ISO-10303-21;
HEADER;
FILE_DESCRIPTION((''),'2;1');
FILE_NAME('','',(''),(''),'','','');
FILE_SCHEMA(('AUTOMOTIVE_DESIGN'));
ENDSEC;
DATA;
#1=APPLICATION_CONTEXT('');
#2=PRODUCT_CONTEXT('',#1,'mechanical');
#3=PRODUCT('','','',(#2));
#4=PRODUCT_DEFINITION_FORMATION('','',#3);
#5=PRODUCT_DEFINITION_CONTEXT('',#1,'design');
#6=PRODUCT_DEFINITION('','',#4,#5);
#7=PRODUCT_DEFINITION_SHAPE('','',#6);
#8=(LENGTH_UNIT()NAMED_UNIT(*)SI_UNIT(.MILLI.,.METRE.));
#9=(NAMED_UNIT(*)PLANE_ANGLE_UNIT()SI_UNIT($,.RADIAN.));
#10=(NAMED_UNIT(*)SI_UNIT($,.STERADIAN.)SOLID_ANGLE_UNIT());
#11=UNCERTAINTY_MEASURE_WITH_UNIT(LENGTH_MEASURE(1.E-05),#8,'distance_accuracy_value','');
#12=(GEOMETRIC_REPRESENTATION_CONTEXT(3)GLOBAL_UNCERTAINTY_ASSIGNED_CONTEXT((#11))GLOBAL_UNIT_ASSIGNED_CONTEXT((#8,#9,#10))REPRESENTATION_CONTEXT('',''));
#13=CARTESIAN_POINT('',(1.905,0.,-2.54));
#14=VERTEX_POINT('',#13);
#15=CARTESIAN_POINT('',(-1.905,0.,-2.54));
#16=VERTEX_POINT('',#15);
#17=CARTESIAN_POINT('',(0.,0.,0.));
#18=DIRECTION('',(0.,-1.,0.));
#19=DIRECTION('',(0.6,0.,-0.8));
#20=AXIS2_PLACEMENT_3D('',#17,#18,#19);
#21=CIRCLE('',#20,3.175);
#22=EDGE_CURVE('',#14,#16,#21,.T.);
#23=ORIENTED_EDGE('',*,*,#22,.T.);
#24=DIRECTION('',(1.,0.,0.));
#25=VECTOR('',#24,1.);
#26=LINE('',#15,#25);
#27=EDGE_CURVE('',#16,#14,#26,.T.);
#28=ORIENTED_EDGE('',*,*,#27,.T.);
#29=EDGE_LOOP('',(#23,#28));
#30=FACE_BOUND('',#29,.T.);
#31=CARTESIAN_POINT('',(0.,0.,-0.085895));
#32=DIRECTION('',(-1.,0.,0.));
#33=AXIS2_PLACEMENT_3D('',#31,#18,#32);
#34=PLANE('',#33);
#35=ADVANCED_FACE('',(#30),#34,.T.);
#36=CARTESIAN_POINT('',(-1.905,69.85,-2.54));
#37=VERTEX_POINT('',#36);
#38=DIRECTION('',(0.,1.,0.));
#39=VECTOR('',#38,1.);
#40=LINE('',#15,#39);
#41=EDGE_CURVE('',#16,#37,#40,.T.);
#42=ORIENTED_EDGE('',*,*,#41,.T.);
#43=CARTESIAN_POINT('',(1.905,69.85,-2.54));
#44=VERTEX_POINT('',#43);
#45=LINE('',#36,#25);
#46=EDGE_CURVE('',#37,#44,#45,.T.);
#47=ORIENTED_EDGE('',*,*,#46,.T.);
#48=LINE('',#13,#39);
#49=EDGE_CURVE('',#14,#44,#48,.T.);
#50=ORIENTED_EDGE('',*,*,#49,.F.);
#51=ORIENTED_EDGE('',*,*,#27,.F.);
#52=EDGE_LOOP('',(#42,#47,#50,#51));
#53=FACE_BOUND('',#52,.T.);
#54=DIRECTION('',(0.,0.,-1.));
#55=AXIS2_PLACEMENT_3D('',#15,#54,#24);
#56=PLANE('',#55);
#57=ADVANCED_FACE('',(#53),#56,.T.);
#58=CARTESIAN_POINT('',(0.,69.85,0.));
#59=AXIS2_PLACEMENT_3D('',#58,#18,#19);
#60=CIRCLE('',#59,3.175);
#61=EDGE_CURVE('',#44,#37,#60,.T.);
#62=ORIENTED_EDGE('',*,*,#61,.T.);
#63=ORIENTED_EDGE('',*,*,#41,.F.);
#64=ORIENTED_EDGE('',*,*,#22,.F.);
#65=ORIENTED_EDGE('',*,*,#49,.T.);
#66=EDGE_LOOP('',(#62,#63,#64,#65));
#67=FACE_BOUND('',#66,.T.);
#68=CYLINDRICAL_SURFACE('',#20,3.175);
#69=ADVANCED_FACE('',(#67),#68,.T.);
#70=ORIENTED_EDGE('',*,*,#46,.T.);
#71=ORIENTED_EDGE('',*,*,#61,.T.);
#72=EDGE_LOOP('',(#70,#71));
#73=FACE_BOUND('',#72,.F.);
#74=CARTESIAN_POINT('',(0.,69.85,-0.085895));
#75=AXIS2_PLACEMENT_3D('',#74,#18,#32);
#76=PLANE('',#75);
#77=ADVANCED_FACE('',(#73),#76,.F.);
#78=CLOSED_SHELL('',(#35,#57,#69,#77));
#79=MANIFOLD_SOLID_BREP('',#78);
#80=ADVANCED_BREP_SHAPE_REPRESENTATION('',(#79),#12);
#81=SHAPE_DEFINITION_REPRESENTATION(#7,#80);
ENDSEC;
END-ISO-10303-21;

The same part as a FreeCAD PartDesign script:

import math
import FreeCAD as App
import Part
import Sketcher

V = App.Vector
Q = App.Units.Quantity

doc = App.newDocument("Part")
body = doc.addObject("PartDesign::Body", "Body")

# Sketch on XZ plane
sketch1 = body.newObject("Sketcher::SketchObject", "Sketch")
sketch1.AttachmentSupport = (doc.getObject("XZ_Plane"), [""])
sketch1.MapMode = "FlatFace"
sketch1.addGeometry(Part.LineSegment(V(1.905, -2.54, 0), V(-1.905, -2.54, 0)), False)
sketch1.addGeometry(Part.ArcOfCircle(Part.Circle(V(0, 0, 0), V(0, 0, 1), 3.175), math.radians(-53.130102), math.radians(233.130102)), False)
sketch1.addConstraint(Sketcher.Constraint("Coincident", 0, 1, 1, 1))
sketch1.addConstraint(Sketcher.Constraint("Coincident", 1, 2, 0, 2))
sketch1.addConstraint(Sketcher.Constraint("Horizontal", 0))
sketch1.addConstraint(Sketcher.Constraint("Coincident", 1, 3, -1, 1))
sketch1.addConstraint(Sketcher.Constraint("Radius", 1, Q("0.125 in")))
sketch1.addConstraint(Sketcher.Constraint("DistanceX", 0, 2, 0, 1, Q("0.15 in")))
pad1 = body.newObject("PartDesign::Pad", "Pad")
pad1.Profile = sketch1
pad1.Length = Q("2.75 in")
pad1.Reversed = True

doc.recompute()
